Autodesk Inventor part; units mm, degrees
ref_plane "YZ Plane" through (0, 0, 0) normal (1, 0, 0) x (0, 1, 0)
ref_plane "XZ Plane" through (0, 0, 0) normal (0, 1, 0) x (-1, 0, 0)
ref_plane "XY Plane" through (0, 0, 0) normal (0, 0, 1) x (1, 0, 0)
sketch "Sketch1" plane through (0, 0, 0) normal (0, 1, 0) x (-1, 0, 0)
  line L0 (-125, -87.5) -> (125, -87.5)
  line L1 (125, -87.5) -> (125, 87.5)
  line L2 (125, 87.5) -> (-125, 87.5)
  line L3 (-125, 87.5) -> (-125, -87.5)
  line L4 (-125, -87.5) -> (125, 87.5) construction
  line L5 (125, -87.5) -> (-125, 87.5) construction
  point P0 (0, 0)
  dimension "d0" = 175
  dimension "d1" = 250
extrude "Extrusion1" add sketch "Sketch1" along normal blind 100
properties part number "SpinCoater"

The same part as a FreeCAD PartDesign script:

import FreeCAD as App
import Part
import Sketcher
from FreeCAD import Vector


def add_polygon(sketch, points):
    """Adds a closed chain of lines whose ends are joined by coincident constraints."""
    first, n = sketch.GeometryCount, len(points)
    for a, b in zip(points, points[1:] + points[:1]):
        sketch.addGeometry(Part.LineSegment(App.Vector(*a, 0), App.Vector(*b, 0)), False)
    for i in range(n):
        sketch.addConstraint(Sketcher.Constraint("Coincident", first + i, 2, first + (i + 1) % n, 1))

doc = App.newDocument("Part")
params = doc.addObject("Spreadsheet::Sheet", "Params")
for row, (alias, value) in enumerate([
    ("sketch1_width", "250 mm"),
    ("sketch1_height", "175 mm"),
    ("pad1_length", "100 mm"),
], start=1):
    params.set(f"A{row}", alias)
    params.set(f"B{row}", "=" + value)
    params.setAlias(f"B{row}", alias)

body = doc.addObject("PartDesign::Body", "Body")

sketch1 = body.newObject("Sketcher::SketchObject", "Sketch")
sketch1.AttachmentSupport = (doc.getObject("XZ_Plane"), [""])
sketch1.MapMode = "FlatFace"
add_polygon(sketch1, [(125, 88), (125, -88), (-125, -88), (-125, 88)])
sketch1.addConstraint([
    Sketcher.Constraint("Vertical", 0),
    Sketcher.Constraint("Horizontal", 1),
    Sketcher.Constraint("Vertical", 2),
    Sketcher.Constraint("Horizontal", 3),
    Sketcher.Constraint("Symmetric", 0, 2, 2, 2, -1, 1),
    Sketcher.Constraint("DistanceX", 1, 2, 1, 1, 250.0),
    Sketcher.Constraint("DistanceY", 0, 2, 0, 1, 175.0),
])
sketch1.setExpression("Constraints[9]", "Params.sketch1_width")
sketch1.setExpression("Constraints[10]", "Params.sketch1_height")
pad1 = body.newObject("PartDesign::Pad", "Pad")
pad1.Profile = sketch1
pad1.setExpression("Length", "Params.pad1_length")
pad1.Reversed = True

doc.recompute()
